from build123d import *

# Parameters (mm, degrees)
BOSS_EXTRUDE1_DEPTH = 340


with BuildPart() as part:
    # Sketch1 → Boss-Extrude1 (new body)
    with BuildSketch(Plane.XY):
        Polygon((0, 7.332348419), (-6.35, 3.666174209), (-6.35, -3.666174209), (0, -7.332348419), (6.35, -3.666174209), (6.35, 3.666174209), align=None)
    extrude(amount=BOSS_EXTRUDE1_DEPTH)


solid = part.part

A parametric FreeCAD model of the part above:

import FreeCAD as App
import Part
import Sketcher

V = App.Vector
Q = App.Units.Quantity


def add_polygon(sketch, points):
    """Adds a closed chain of lines whose ends are joined by coincident constraints."""
    first, n = sketch.GeometryCount, len(points)
    for a, b in zip(points, points[1:] + points[:1]):
        sketch.addGeometry(Part.LineSegment(App.Vector(*a, 0), App.Vector(*b, 0)), False)
    for i in range(n):
        sketch.addConstraint(Sketcher.Constraint("Coincident", first + i, 2, first + (i + 1) % n, 1))

doc = App.newDocument("Part")
body = doc.addObject("PartDesign::Body", "Body")

sketch1 = body.newObject("Sketcher::SketchObject", "Sketch")
sketch1.AttachmentSupport = (doc.getObject("XY_Plane"), [""])
sketch1.MapMode = "FlatFace"
add_polygon(sketch1, [(0, 7), (-6, 4), (-6, -4), (0, -7), (6, -4), (6, 4)])
sketch1.addConstraint(Sketcher.Constraint("Vertical", 1))
sketch1.addConstraint(Sketcher.Constraint("Vertical", 4))
sketch1.addConstraint(Sketcher.Constraint("Symmetric", 0, 2, 3, 2, -1, 1))
sketch1.addConstraint(Sketcher.Constraint("Symmetric", 2, 2, 5, 2, -1, 1))
sketch1.addConstraint(Sketcher.Constraint("PointOnObject", 2, 2, -2))
sketch1.addConstraint(Sketcher.Constraint("Parallel", 2, 5))
sketch1.addConstraint(Sketcher.Constraint("Horizontal", 1, 2, 3, 2))
sketch1.addConstraint(Sketcher.Constraint("Angle", 0, Q("-150 deg")))
sketch1.addConstraint(Sketcher.Constraint("DistanceX", 1, 2, 3, 2, Q("12.7 mm")))
sketch1.addConstraint(Sketcher.Constraint("DistanceY", 1, 2, 1, 1, Q("7.332348 mm")))
pad1 = body.newObject("PartDesign::Pad", "Pad")
pad1.Profile = sketch1
pad1.Length = 340

doc.recompute()
